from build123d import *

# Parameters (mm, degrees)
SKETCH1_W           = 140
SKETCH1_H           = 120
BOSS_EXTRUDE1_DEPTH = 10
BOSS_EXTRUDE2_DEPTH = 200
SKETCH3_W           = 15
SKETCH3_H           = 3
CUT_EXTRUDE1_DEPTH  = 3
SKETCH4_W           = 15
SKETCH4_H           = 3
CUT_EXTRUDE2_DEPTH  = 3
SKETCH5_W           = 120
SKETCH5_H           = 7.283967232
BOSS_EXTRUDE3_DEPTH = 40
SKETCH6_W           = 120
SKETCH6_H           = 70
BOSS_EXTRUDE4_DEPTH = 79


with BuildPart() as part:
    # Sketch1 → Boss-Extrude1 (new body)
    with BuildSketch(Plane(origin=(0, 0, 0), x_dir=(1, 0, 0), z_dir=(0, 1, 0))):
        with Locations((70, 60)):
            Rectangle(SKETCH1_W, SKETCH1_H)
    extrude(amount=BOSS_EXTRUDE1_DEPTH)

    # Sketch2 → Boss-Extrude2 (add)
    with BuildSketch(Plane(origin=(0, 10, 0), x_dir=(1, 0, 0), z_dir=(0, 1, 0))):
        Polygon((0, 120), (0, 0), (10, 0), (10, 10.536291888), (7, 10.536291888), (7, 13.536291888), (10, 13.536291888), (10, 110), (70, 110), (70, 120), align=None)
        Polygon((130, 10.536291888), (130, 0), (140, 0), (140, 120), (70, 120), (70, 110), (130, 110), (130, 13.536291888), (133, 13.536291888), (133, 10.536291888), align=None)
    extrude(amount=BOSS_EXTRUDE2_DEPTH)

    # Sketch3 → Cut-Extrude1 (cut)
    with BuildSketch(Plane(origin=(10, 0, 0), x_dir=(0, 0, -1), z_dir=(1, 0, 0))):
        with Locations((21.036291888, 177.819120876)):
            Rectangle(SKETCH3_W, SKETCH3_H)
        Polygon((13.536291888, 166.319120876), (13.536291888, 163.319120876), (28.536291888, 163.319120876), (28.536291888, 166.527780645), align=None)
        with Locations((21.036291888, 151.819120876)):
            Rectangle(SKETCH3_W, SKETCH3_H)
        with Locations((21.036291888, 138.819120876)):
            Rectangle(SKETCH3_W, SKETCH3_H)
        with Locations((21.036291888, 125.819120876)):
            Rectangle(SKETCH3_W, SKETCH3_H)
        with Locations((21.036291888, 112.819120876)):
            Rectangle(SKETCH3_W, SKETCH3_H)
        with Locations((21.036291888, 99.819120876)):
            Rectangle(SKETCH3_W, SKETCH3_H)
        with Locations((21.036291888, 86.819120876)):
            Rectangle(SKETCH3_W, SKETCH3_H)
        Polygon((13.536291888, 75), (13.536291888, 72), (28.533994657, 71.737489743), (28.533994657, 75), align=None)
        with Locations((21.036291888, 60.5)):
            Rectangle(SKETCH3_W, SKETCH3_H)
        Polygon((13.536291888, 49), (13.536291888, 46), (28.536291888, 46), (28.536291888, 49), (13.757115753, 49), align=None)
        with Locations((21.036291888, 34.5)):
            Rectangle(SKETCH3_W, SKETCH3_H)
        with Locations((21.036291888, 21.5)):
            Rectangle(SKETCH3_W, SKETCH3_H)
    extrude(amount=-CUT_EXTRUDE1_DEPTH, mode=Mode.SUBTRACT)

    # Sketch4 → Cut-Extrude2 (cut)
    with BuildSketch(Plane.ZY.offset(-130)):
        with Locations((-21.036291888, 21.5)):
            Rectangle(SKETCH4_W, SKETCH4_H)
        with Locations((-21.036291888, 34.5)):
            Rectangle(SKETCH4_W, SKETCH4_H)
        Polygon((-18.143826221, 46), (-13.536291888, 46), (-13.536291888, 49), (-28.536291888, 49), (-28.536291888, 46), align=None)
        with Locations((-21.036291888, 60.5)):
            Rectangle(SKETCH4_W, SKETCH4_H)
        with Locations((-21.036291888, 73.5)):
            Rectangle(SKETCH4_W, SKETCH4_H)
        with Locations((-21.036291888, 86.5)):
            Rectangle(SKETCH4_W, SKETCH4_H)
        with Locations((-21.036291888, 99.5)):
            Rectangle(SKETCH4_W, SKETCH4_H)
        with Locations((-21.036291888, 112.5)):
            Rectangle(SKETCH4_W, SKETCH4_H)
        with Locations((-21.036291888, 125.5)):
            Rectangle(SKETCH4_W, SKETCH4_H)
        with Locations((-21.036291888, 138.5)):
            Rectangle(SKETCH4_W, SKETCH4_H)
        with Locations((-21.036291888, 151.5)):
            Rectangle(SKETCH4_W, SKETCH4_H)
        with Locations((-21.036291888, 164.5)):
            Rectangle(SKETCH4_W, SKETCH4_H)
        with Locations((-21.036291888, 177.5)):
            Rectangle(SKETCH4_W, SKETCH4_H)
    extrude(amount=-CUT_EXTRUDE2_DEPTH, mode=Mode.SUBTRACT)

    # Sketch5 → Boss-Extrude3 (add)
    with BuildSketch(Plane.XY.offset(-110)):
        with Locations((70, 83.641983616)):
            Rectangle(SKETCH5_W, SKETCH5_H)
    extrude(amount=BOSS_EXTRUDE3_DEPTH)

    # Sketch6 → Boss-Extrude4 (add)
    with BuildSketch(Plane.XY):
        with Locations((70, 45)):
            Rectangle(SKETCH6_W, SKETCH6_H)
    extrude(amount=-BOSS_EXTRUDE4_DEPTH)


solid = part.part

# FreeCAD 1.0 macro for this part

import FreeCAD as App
import Part
import Sketcher
from FreeCAD import Vector
Q = App.Units.Quantity

doc = App.newDocument("Part")
body = doc.addObject("PartDesign::Body", "Body")

# Sketch on XZ plane
sketch1 = body.newObject("Sketcher::SketchObject", "Sketch")
sketch1.AttachmentSupport = (doc.getObject("XZ_Plane"), [""])
sketch1.MapMode = "FlatFace"
sketch1.addGeometry([
    Part.LineSegment(Vector(0, -120, 0), Vector(0, 0, 0)),
    Part.LineSegment(Vector(0, 0, 0), Vector(140, 0, 0)),
    Part.LineSegment(Vector(140, 0, 0), Vector(140, -120, 0)),
    Part.LineSegment(Vector(140, -120, 0), Vector(0, -120, 0)),
], False)
sketch1.addConstraint([
    Sketcher.Constraint("Coincident", 0, 2, 1, 1),
    Sketcher.Constraint("Coincident", 1, 2, 2, 1),
    Sketcher.Constraint("Coincident", 2, 2, 3, 1),
    Sketcher.Constraint("Coincident", 3, 2, 0, 1),
    Sketcher.Constraint("Vertical", 0),
    Sketcher.Constraint("Horizontal", 1),
    Sketcher.Constraint("Vertical", 2),
    Sketcher.Constraint("Horizontal", 3),
    Sketcher.Constraint("Coincident", 0, 2, -1, 1),
    Sketcher.Constraint("DistanceX", 1, 1, 1, 2, Q("140 mm")),
    Sketcher.Constraint("DistanceY", 0, 1, 0, 2, Q("120 mm")),
])
pad1 = body.newObject("PartDesign::Pad", "Pad")
pad1.Profile = sketch1
pad1.Length = 10
pad1.Reversed = True

# Sketch on XZ plane
sketch2 = body.newObject("Sketcher::SketchObject", "Sketch001")
sketch2.AttachmentSupport = (doc.getObject("XZ_Plane"), [""])
sketch2.MapMode = "FlatFace"
sketch2.AttachmentOffset = App.Placement(Vector(0, 0, -10), App.Rotation())
sketch2.addGeometry([
    Part.LineSegment(Vector(0, -120, 0), Vector(0, 0, 0)),  # 0
    Part.LineSegment(Vector(0, 0, 0), Vector(10, 0, 0)),  # 1
    Part.LineSegment(Vector(10, 0, 0), Vector(10, -10.5, 0)),  # 2
    Part.LineSegment(Vector(10, -10.5, 0), Vector(7, -10.5, 0)),  # 3
    Part.LineSegment(Vector(7, -10.5, 0), Vector(7, -13.5, 0)),  # 4
    Part.LineSegment(Vector(7, -13.5, 0), Vector(10, -13.5, 0)),  # 5
    Part.LineSegment(Vector(10, -13.5, 0), Vector(10, -110, 0)),  # 6
    Part.LineSegment(Vector(10, -110, 0), Vector(130, -110, 0)),  # 7
    Part.LineSegment(Vector(130, -110, 0), Vector(130, -13.5, 0)),  # 8
    Part.LineSegment(Vector(130, -13.5, 0), Vector(133, -13.5, 0)),  # 9
    Part.LineSegment(Vector(133, -13.5, 0), Vector(133, -10.5, 0)),  # 10
    Part.LineSegment(Vector(133, -10.5, 0), Vector(130, -10.5, 0)),  # 11
    Part.LineSegment(Vector(130, -10.5, 0), Vector(130, 0, 0)),  # 12
    Part.LineSegment(Vector(130, 0, 0), Vector(140, 0, 0)),  # 13
    Part.LineSegment(Vector(140, 0, 0), Vector(140, -120, 0)),  # 14
    Part.LineSegment(Vector(140, -120, 0), Vector(0, -120, 0)),  # 15
], False)
sketch2.addConstraint([
    Sketcher.Constraint("Coincident", 0, 2, 1, 1),
    Sketcher.Constraint("Coincident", 1, 2, 2, 1),
    Sketcher.Constraint("Coincident", 2, 2, 3, 1),
    Sketcher.Constraint("Coincident", 3, 2, 4, 1),
    Sketcher.Constraint("Coincident", 4, 2, 5, 1),
    Sketcher.Constraint("Coincident", 5, 2, 6, 1),
    Sketcher.Constraint("Coincident", 6, 2, 7, 1),
    Sketcher.Constraint("Coincident", 7, 2, 8, 1),
    Sketcher.Constraint("Coincident", 8, 2, 9, 1),
    Sketcher.Constraint("Coincident", 9, 2, 10, 1),
    Sketcher.Constraint("Coincident", 10, 2, 11, 1),
    Sketcher.Constraint("Coincident", 11, 2, 12, 1),
    Sketcher.Constraint("Coincident", 12, 2, 13, 1),
    Sketcher.Constraint("Coincident", 13, 2, 14, 1),
    Sketcher.Constraint("Coincident", 14, 2, 15, 1),
    Sketcher.Constraint("Coincident", 15, 2, 0, 1),
    Sketcher.Constraint("Vertical", 0),
    Sketcher.Constraint("Horizontal", 1),
    Sketcher.Constraint("Vertical", 2),
    Sketcher.Constraint("Horizontal", 3),
    Sketcher.Constraint("Vertical", 4),
    Sketcher.Constraint("Horizontal", 5),
    Sketcher.Constraint("Vertical", 6),
    Sketcher.Constraint("Horizontal", 7),
    Sketcher.Constraint("Vertical", 8),
    Sketcher.Constraint("Horizontal", 9),
    Sketcher.Constraint("Vertical", 10),
    Sketcher.Constraint("Horizontal", 11),
    Sketcher.Constraint("Vertical", 12),
    Sketcher.Constraint("Horizontal", 13),
    Sketcher.Constraint("Vertical", 14),
    Sketcher.Constraint("Horizontal", 15),
    Sketcher.Constraint("Coincident", 0, 2, -1, 1),
    Sketcher.Constraint("PointOnObject", 12, 2, -1),
    Sketcher.Constraint("Horizontal", 5, 2, 8, 2),
    Sketcher.Constraint("Horizontal", 3, 2, 10, 2),
    Sketcher.Constraint("Vertical", 2, 2, 5, 2),
    Sketcher.Constraint("Vertical", 8, 2, 11, 2),
    Sketcher.Constraint("Equal", 5, 9),
    Sketcher.Constraint("Equal", 1, 13),
    Sketcher.Constraint("Equal", 7, 0),
    Sketcher.Constraint("Equal", 11, 4),
    Sketcher.Constraint("DistanceX", 1, 1, 1, 2, Q("10 mm")),
    Sketcher.Constraint("DistanceX", 3, 2, 3, 1, Q("3 mm")),
    Sketcher.Constraint("DistanceX", 7, 1, 7, 2, Q("120 mm")),
    Sketcher.Constraint("DistanceY", 6, 2, -1, 1, Q("110 mm")),
    Sketcher.Constraint("DistanceY", 2, 2, 2, 1, Q("10.536292 mm")),
])
pad2 = body.newObject("PartDesign::Pad", "Pad001")
pad2.Profile = sketch2
pad2.Length = 200
pad2.Reversed = True

# Sketch on YZ plane
sketch3 = body.newObject("Sketcher::SketchObject", "Sketch002")
sketch3.AttachmentSupport = (doc.getObject("YZ_Plane"), [""])
sketch3.MapMode = "FlatFace"
sketch3.AttachmentOffset = App.Placement(Vector(0, 0, 10), App.Rotation())
sketch3.addGeometry([
    Part.LineSegment(Vector(179.3, -13.5, 0), Vector(176.3, -13.5, 0)),  # 0
    Part.LineSegment(Vector(176.3, -13.5, 0), Vector(176.3, -28.5, 0)),  # 1
    Part.LineSegment(Vector(176.3, -28.5, 0), Vector(179.3, -28.5, 0)),  # 2
    Part.LineSegment(Vector(179.3, -28.5, 0), Vector(179.3, -13.5, 0)),  # 3
    Part.LineSegment(Vector(166.3, -13.5, 0), Vector(163.3, -13.5, 0)),  # 4
    Part.LineSegment(Vector(163.3, -13.5, 0), Vector(163.3, -28.5, 0)),  # 5
    Part.LineSegment(Vector(163.3, -28.5, 0), Vector(166.5, -28.5, 0)),  # 6
    Part.LineSegment(Vector(166.5, -28.5, 0), Vector(166.3, -13.5, 0)),  # 7
    Part.LineSegment(Vector(153.3, -13.5, 0), Vector(150.3, -13.5, 0)),  # 8
    Part.LineSegment(Vector(150.3, -13.5, 0), Vector(150.3, -28.5, 0)),  # 9
    Part.LineSegment(Vector(150.3, -28.5, 0), Vector(153.3, -28.5, 0)),  # 10
    Part.LineSegment(Vector(153.3, -28.5, 0), Vector(153.3, -13.5, 0)),  # 11
    Part.LineSegment(Vector(140.3, -13.5, 0), Vector(137.3, -13.5, 0)),  # 12
    Part.LineSegment(Vector(137.3, -13.5, 0), Vector(137.3, -28.5, 0)),  # 13
    Part.LineSegment(Vector(137.3, -28.5, 0), Vector(140.3, -28.5, 0)),  # 14
    Part.LineSegment(Vector(140.3, -28.5, 0), Vector(140.3, -13.5, 0)),  # 15
    Part.LineSegment(Vector(127.3, -13.5, 0), Vector(124.3, -13.5, 0)),  # 16
    Part.LineSegment(Vector(124.3, -13.5, 0), Vector(124.3, -28.5, 0)),  # 17
    Part.LineSegment(Vector(124.3, -28.5, 0), Vector(127.3, -28.5, 0)),  # 18
    Part.LineSegment(Vector(127.3, -28.5, 0), Vector(127.3, -13.5, 0)),  # 19
    Part.LineSegment(Vector(114.3, -13.5, 0), Vector(111.3, -13.5, 0)),  # 20
    Part.LineSegment(Vector(111.3, -13.5, 0), Vector(111.3, -28.5, 0)),  # 21
    Part.LineSegment(Vector(111.3, -28.5, 0), Vector(114.3, -28.5, 0)),  # 22
    Part.LineSegment(Vector(114.3, -28.5, 0), Vector(114.3, -13.5, 0)),  # 23
    Part.LineSegment(Vector(101.3, -13.5, 0), Vector(98.3, -13.5, 0)),  # 24
    Part.LineSegment(Vector(98.3, -13.5, 0), Vector(98.3, -28.5, 0)),  # 25
    Part.LineSegment(Vector(98.3, -28.5, 0), Vector(101.3, -28.5, 0)),  # 26
    Part.LineSegment(Vector(101.3, -28.5, 0), Vector(101.3, -13.5, 0)),  # 27
    Part.LineSegment(Vector(88.3, -13.5, 0), Vector(85.3, -13.5, 0)),  # 28
    Part.LineSegment(Vector(85.3, -13.5, 0), Vector(85.3, -28.5, 0)),  # 29
    Part.LineSegment(Vector(85.3, -28.5, 0), Vector(88.3, -28.5, 0)),  # 30
    Part.LineSegment(Vector(88.3, -28.5, 0), Vector(88.3, -13.5, 0)),  # 31
    Part.LineSegment(Vector(75, -13.5, 0), Vector(72, -13.5, 0)),  # 32
    Part.LineSegment(Vector(72, -13.5, 0), Vector(71.7, -28.5, 0)),  # 33
    Part.LineSegment(Vector(71.7, -28.5, 0), Vector(75, -28.5, 0)),  # 34
    Part.LineSegment(Vector(75, -28.5, 0), Vector(75, -13.5, 0)),  # 35
    Part.LineSegment(Vector(62, -13.5, 0), Vector(59, -13.5, 0)),  # 36
    Part.LineSegment(Vector(59, -13.5, 0), Vector(59, -28.5, 0)),  # 37
    Part.LineSegment(Vector(59, -28.5, 0), Vector(62, -28.5, 0)),  # 38
    Part.LineSegment(Vector(62, -28.5, 0), Vector(62, -13.5, 0)),  # 39
    Part.LineSegment(Vector(49, -13.5, 0), Vector(46, -13.5, 0)),  # 40
    Part.LineSegment(Vector(46, -13.5, 0), Vector(46, -28.5, 0)),  # 41
    Part.LineSegment(Vector(46, -28.5, 0), Vector(49, -28.5, 0)),  # 42
    Part.LineSegment(Vector(49, -28.5, 0), Vector(49, -13.5, 0)),  # 43
    Part.LineSegment(Vector(36, -13.5, 0), Vector(33, -13.5, 0)),  # 44
    Part.LineSegment(Vector(33, -13.5, 0), Vector(33, -28.5, 0)),  # 45
    Part.LineSegment(Vector(33, -28.5, 0), Vector(36, -28.5, 0)),  # 46
    Part.LineSegment(Vector(36, -28.5, 0), Vector(36, -13.5, 0)),  # 47
    Part.LineSegment(Vector(23, -13.5, 0), Vector(20, -13.5, 0)),  # 48
    Part.LineSegment(Vector(20, -13.5, 0), Vector(20, -28.5, 0)),  # 49
    Part.LineSegment(Vector(20, -28.5, 0), Vector(23, -28.5, 0)),  # 50
    Part.LineSegment(Vector(23, -28.5, 0), Vector(23, -13.5, 0)),  # 51
], False)
sketch3.addConstraint([
    Sketcher.Constraint("Coincident", 0, 2, 1, 1),
    Sketcher.Constraint("Coincident", 1, 2, 2, 1),
    Sketcher.Constraint("Coincident", 2, 2, 3, 1),
    Sketcher.Constraint("Coincident", 3, 2, 0, 1),
    Sketcher.Constraint("Coincident", 4, 2, 5, 1),
    Sketcher.Constraint("Coincident", 5, 2, 6, 1),
    Sketcher.Constraint("Coincident", 6, 2, 7, 1),
    Sketcher.Constraint("Coincident", 7, 2, 4, 1),
    Sketcher.Constraint("Coincident", 8, 2, 9, 1),
    Sketcher.Constraint("Coincident", 9, 2, 10, 1),
    Sketcher.Constraint("Coincident", 10, 2, 11, 1),
    Sketcher.Constraint("Coincident", 11, 2, 8, 1),
    Sketcher.Constraint("Coincident", 12, 2, 13, 1),
    Sketcher.Constraint("Coincident", 13, 2, 14, 1),
    Sketcher.Constraint("Coincident", 14, 2, 15, 1),
    Sketcher.Constraint("Coincident", 15, 2, 12, 1),
    Sketcher.Constraint("Coincident", 16, 2, 17, 1),
    Sketcher.Constraint("Coincident", 17, 2, 18, 1),
    Sketcher.Constraint("Coincident", 18, 2, 19, 1),
    Sketcher.Constraint("Coincident", 19, 2, 16, 1),
    Sketcher.Constraint("Coincident", 20, 2, 21, 1),
    Sketcher.Constraint("Coincident", 21, 2, 22, 1),
    Sketcher.Constraint("Coincident", 22, 2, 23, 1),
    Sketcher.Constraint("Coincident", 23, 2, 20, 1),
    Sketcher.Constraint("Coincident", 24, 2, 25, 1),
    Sketcher.Constraint("Coincident", 25, 2, 26, 1),
    Sketcher.Constraint("Coincident", 26, 2, 27, 1),
    Sketcher.Constraint("Coincident", 27, 2, 24, 1),
    Sketcher.Constraint("Coincident", 28, 2, 29, 1),
    Sketcher.Constraint("Coincident", 29, 2, 30, 1),
    Sketcher.Constraint("Coincident", 30, 2, 31, 1),
    Sketcher.Constraint("Coincident", 31, 2, 28, 1),
    Sketcher.Constraint("Coincident", 32, 2, 33, 1),
    Sketcher.Constraint("Coincident", 33, 2, 34, 1),
    Sketcher.Constraint("Coincident", 34, 2, 35, 1),
    Sketcher.Constraint("Coincident", 35, 2, 32, 1),
    Sketcher.Constraint("Coincident", 36, 2, 37, 1),
    Sketcher.Constraint("Coincident", 37, 2, 38, 1),
    Sketcher.Constraint("Coincident", 38, 2, 39, 1),
    Sketcher.Constraint("Coincident", 39, 2, 36, 1),
    Sketcher.Constraint("Coincident", 40, 2, 41, 1),
    Sketcher.Constraint("Coincident", 41, 2, 42, 1),
    Sketcher.Constraint("Coincident", 42, 2, 43, 1),
    Sketcher.Constraint("Coincident", 43, 2, 40, 1),
    Sketcher.Constraint("Coincident", 44, 2, 45, 1),
    Sketcher.Constraint("Coincident", 45, 2, 46, 1),
    Sketcher.Constraint("Coincident", 46, 2, 47, 1),
    Sketcher.Constraint("Coincident", 47, 2, 44, 1),
    Sketcher.Constraint("Coincident", 48, 2, 49, 1),
    Sketcher.Constraint("Coincident", 49, 2, 50, 1),
    Sketcher.Constraint("Coincident", 50, 2, 51, 1),
    Sketcher.Constraint("Coincident", 51, 2, 48, 1),
    Sketcher.Constraint("Horizontal", 0),
    Sketcher.Constraint("Vertical", 1),
    Sketcher.Constraint("Horizontal", 2),
    Sketcher.Constraint("Vertical", 3),
    Sketcher.Constraint("Horizontal", 4),
    Sketcher.Constraint("Vertical", 5),
    Sketcher.Constraint("Horizontal", 6),
    Sketcher.Constraint("Horizontal", 8),
    Sketcher.Constraint("Vertical", 9),
    Sketcher.Constraint("Horizontal", 10),
    Sketcher.Constraint("Vertical", 11),
    Sketcher.Constraint("Horizontal", 12),
    Sketcher.Constraint("Vertical", 13),
    Sketcher.Constraint("Horizontal", 14),
    Sketcher.Constraint("Vertical", 15),
    Sketcher.Constraint("Horizontal", 16),
    Sketcher.Constraint("Vertical", 17),
    Sketcher.Constraint("Horizontal", 18),
    Sketcher.Constraint("Vertical", 19),
    Sketcher.Constraint("Horizontal", 20),
    Sketcher.Constraint("Vertical", 21),
    Sketcher.Constraint("Horizontal", 22),
    Sketcher.Constraint("Vertical", 23),
    Sketcher.Constraint("Horizontal", 24),
    Sketcher.Constraint("Vertical", 25),
    Sketcher.Constraint("Horizontal", 26),
    Sketcher.Constraint("Vertical", 27),
    Sketcher.Constraint("Horizontal", 28),
    Sketcher.Constraint("Vertical", 29),
    Sketcher.Constraint("Horizontal", 30),
    Sketcher.Constraint("Vertical", 31),
    Sketcher.Constraint("Horizontal", 32),
    Sketcher.Constraint("Horizontal", 34),
    Sketcher.Constraint("Vertical", 35),
    Sketcher.Constraint("Horizontal", 36),
    Sketcher.Constraint("Vertical", 37),
    Sketcher.Constraint("Horizontal", 38),
    Sketcher.Constraint("Vertical", 39),
    Sketcher.Constraint("Horizontal", 40),
    Sketcher.Constraint("Vertical", 41),
    Sketcher.Constraint("Horizontal", 42),
    Sketcher.Constraint("Vertical", 43),
    Sketcher.Constraint("Horizontal", 44),
    Sketcher.Constraint("Vertical", 45),
    Sketcher.Constraint("Horizontal", 46),
    Sketcher.Constraint("Vertical", 47),
    Sketcher.Constraint("Horizontal", 48),
    Sketcher.Constraint("Vertical", 49),
    Sketcher.Constraint("Horizontal", 50),
    Sketcher.Constraint("Vertical", 51),
    Sketcher.Constraint("Horizontal", 3, 2, 4, 2),
    Sketcher.Constraint("Horizontal", 2, 2, 5, 2),
    Sketcher.Constraint("Horizontal", 7, 2, 8, 2),
    Sketcher.Constraint("Horizontal", 6, 2, 9, 2),
    Sketcher.Constraint("Horizontal", 11, 2, 12, 2),
    Sketcher.Constraint("Horizontal", 10, 2, 13, 2),
    Sketcher.Constraint("Horizontal", 15, 2, 16, 2),
    Sketcher.Constraint("Horizontal", 14, 2, 17, 2),
    Sketcher.Constraint("Horizontal", 19, 2, 20, 2),
    Sketcher.Constraint("Horizontal", 18, 2, 21, 2),
    Sketcher.Constraint("Horizontal", 23, 2, 24, 2),
    Sketcher.Constraint("Horizontal", 22, 2, 25, 2),
    Sketcher.Constraint("Horizontal", 27, 2, 28, 2),
    Sketcher.Constraint("Horizontal", 26, 2, 29, 2),
    Sketcher.Constraint("Horizontal", 31, 2, 32, 2),
    Sketcher.Constraint("Horizontal", 35, 2, 36, 2),
    Sketcher.Constraint("Horizontal", 30, 2, 37, 2),
    Sketcher.Constraint("Horizontal", 39, 2, 40, 2),
    Sketcher.Constraint("Horizontal", 38, 2, 41, 2),
    Sketcher.Constraint("Horizontal", 43, 2, 44, 2),
    Sketcher.Constraint("Horizontal", 42, 2, 45, 2),
    Sketcher.Constraint("Horizontal", 47, 2, 48, 2),
    Sketcher.Constraint("Horizontal", 46, 2, 49, 2),
    Sketcher.Constraint("Equal", 2, 4),
    Sketcher.Constraint("Equal", 4, 8),
    Sketcher.Constraint("Equal", 10, 12),
    Sketcher.Constraint("Equal", 14, 16),
    Sketcher.Constraint("Equal", 18, 20),
    Sketcher.Constraint("Equal", 22, 24),
    Sketcher.Constraint("Equal", 26, 28),
    Sketcher.Constraint("Equal", 30, 32),
    Sketcher.Constraint("Equal", 32, 36),
    Sketcher.Constraint("Equal", 38, 40),
    Sketcher.Constraint("Equal", 42, 44),
    Sketcher.Constraint("Equal", 46, 48),
    Sketcher.Constraint("DistanceX", 0, 2, 0, 1, Q("3 mm")),
    Sketcher.Constraint("DistanceY", 1, 2, 1, 1, Q("15 mm")),
    Sketcher.Constraint("Distance", 33, Q("15 mm")),
    Sketcher.Constraint("DistanceX", -1, 1, 32, 2, Q("72 mm")),
    Sketcher.Constraint("DistanceX", -1, 1, 36, 2, Q("59 mm")),
    Sketcher.Constraint("DistanceX", -1, 1, 40, 2, Q("46 mm")),
    Sketcher.Constraint("DistanceX", -1, 1, 44, 2, Q("33 mm")),
    Sketcher.Constraint("DistanceX", -1, 1, 48, 2, Q("20 mm")),
    Sketcher.Constraint("DistanceX", 4, 2, 0, 2, Q("13 mm")),
    Sketcher.Constraint("DistanceX", 8, 2, 4, 2, Q("13 mm")),
    Sketcher.Constraint("DistanceX", 12, 2, 8, 2, Q("13 mm")),
    Sketcher.Constraint("DistanceX", 16, 2, 12, 2, Q("13 mm")),
    Sketcher.Constraint("DistanceX", 20, 2, 16, 2, Q("13 mm")),
    Sketcher.Constraint("DistanceX", 24, 2, 20, 2, Q("13 mm")),
    Sketcher.Constraint("DistanceX", 28, 2, 24, 2, Q("13 mm")),
    Sketcher.Constraint("DistanceX", 6, 1, 6, 2, Q("3.20866 mm")),
    Sketcher.Constraint("DistanceX", 34, 1, 34, 2, Q("3.26251 mm")),
    Sketcher.Constraint("DistanceX", -1, 1, 0, 2, Q("176.319121 mm")),
    Sketcher.Constraint("DistanceY", 0, 2, -1, 1, Q("13.536292 mm")),
])
pocket1 = body.newObject("PartDesign::Pocket", "Pocket")
pocket1.Profile = sketch3
pocket1.Length = 3

# Sketch on YZ plane
sketch4 = body.newObject("Sketcher::SketchObject", "Sketch003")
sketch4.AttachmentSupport = (doc.getObject("YZ_Plane"), [""])
sketch4.MapMode = "FlatFace"
sketch4.AttachmentOffset = App.Placement(Vector(0, 0, 130), App.Rotation())
sketch4.addGeometry([
    Part.LineSegment(Vector(23, -28.5, 0), Vector(20, -28.5, 0)),  # 0
    Part.LineSegment(Vector(20, -28.5, 0), Vector(20, -13.5, 0)),  # 1
    Part.LineSegment(Vector(20, -13.5, 0), Vector(23, -13.5, 0)),  # 2
    Part.LineSegment(Vector(23, -13.5, 0), Vector(23, -28.5, 0)),  # 3
    Part.LineSegment(Vector(36, -28.5, 0), Vector(33, -28.5, 0)),  # 4
    Part.LineSegment(Vector(33, -28.5, 0), Vector(33, -13.5, 0)),  # 5
    Part.LineSegment(Vector(33, -13.5, 0), Vector(36, -13.5, 0)),  # 6
    Part.LineSegment(Vector(36, -13.5, 0), Vector(36, -28.5, 0)),  # 7
    Part.LineSegment(Vector(46, -13.5, 0), Vector(49, -13.5, 0)),  # 8
    Part.LineSegment(Vector(49, -13.5, 0), Vector(49, -28.5, 0)),  # 9
    Part.LineSegment(Vector(49, -28.5, 0), Vector(46, -28.5, 0)),  # 10
    Part.LineSegment(Vector(46, -28.5, 0), Vector(46, -13.5, 0)),  # 11
    Part.LineSegment(Vector(62, -28.5, 0), Vector(59, -28.5, 0)),  # 12
    Part.LineSegment(Vector(59, -28.5, 0), Vector(59, -13.5, 0)),  # 13
    Part.LineSegment(Vector(59, -13.5, 0), Vector(62, -13.5, 0)),  # 14
    Part.LineSegment(Vector(62, -13.5, 0), Vector(62, -28.5, 0)),  # 15
    Part.LineSegment(Vector(75, -28.5, 0), Vector(72, -28.5, 0)),  # 16
    Part.LineSegment(Vector(72, -28.5, 0), Vector(72, -13.5, 0)),  # 17
    Part.LineSegment(Vector(72, -13.5, 0), Vector(75, -13.5, 0)),  # 18
    Part.LineSegment(Vector(75, -13.5, 0), Vector(75, -28.5, 0)),  # 19
    Part.LineSegment(Vector(88, -28.5, 0), Vector(85, -28.5, 0)),  # 20
    Part.LineSegment(Vector(85, -28.5, 0), Vector(85, -13.5, 0)),  # 21
    Part.LineSegment(Vector(85, -13.5, 0), Vector(88, -13.5, 0)),  # 22
    Part.LineSegment(Vector(88, -13.5, 0), Vector(88, -28.5, 0)),  # 23
    Part.LineSegment(Vector(101, -28.5, 0), Vector(98, -28.5, 0)),  # 24
    Part.LineSegment(Vector(98, -28.5, 0), Vector(98, -13.5, 0)),  # 25
    Part.LineSegment(Vector(98, -13.5, 0), Vector(101, -13.5, 0)),  # 26
    Part.LineSegment(Vector(101, -13.5, 0), Vector(101, -28.5, 0)),  # 27
    Part.LineSegment(Vector(114, -28.5, 0), Vector(111, -28.5, 0)),  # 28
    Part.LineSegment(Vector(111, -28.5, 0), Vector(111, -13.5, 0)),  # 29
    Part.LineSegment(Vector(111, -13.5, 0), Vector(114, -13.5, 0)),  # 30
    Part.LineSegment(Vector(114, -13.5, 0), Vector(114, -28.5, 0)),  # 31
    Part.LineSegment(Vector(127, -28.5, 0), Vector(124, -28.5, 0)),  # 32
    Part.LineSegment(Vector(124, -28.5, 0), Vector(124, -13.5, 0)),  # 33
    Part.LineSegment(Vector(124, -13.5, 0), Vector(127, -13.5, 0)),  # 34
    Part.LineSegment(Vector(127, -13.5, 0), Vector(127, -28.5, 0)),  # 35
    Part.LineSegment(Vector(140, -28.5, 0), Vector(137, -28.5, 0)),  # 36
    Part.LineSegment(Vector(137, -28.5, 0), Vector(137, -13.5, 0)),  # 37
    Part.LineSegment(Vector(137, -13.5, 0), Vector(140, -13.5, 0)),  # 38
    Part.LineSegment(Vector(140, -13.5, 0), Vector(140, -28.5, 0)),  # 39
    Part.LineSegment(Vector(153, -28.5, 0), Vector(150, -28.5, 0)),  # 40
    Part.LineSegment(Vector(150, -28.5, 0), Vector(150, -13.5, 0)),  # 41
    Part.LineSegment(Vector(150, -13.5, 0), Vector(153, -13.5, 0)),  # 42
    Part.LineSegment(Vector(153, -13.5, 0), Vector(153, -28.5, 0)),  # 43
    Part.LineSegment(Vector(166, -28.5, 0), Vector(163, -28.5, 0)),  # 44
    Part.LineSegment(Vector(163, -28.5, 0), Vector(163, -13.5, 0)),  # 45
    Part.LineSegment(Vector(163, -13.5, 0), Vector(166, -13.5, 0)),  # 46
    Part.LineSegment(Vector(166, -13.5, 0), Vector(166, -28.5, 0)),  # 47
    Part.LineSegment(Vector(179, -28.5, 0), Vector(176, -28.5, 0)),  # 48
    Part.LineSegment(Vector(176, -28.5, 0), Vector(176, -13.5, 0)),  # 49
    Part.LineSegment(Vector(176, -13.5, 0), Vector(179, -13.5, 0)),  # 50
    Part.LineSegment(Vector(179, -13.5, 0), Vector(179, -28.5, 0)),  # 51
], False)
sketch4.addConstraint([
    Sketcher.Constraint("Coincident", 0, 2, 1, 1),
    Sketcher.Constraint("Coincident", 1, 2, 2, 1),
    Sketcher.Constraint("Coincident", 2, 2, 3, 1),
    Sketcher.Constraint("Coincident", 3, 2, 0, 1),
    Sketcher.Constraint("Coincident", 4, 2, 5, 1),
    Sketcher.Constraint("Coincident", 5, 2, 6, 1),
    Sketcher.Constraint("Coincident", 6, 2, 7, 1),
    Sketcher.Constraint("Coincident", 7, 2, 4, 1),
    Sketcher.Constraint("Coincident", 8, 2, 9, 1),
    Sketcher.Constraint("Coincident", 9, 2, 10, 1),
    Sketcher.Constraint("Coincident", 10, 2, 11, 1),
    Sketcher.Constraint("Coincident", 11, 2, 8, 1),
    Sketcher.Constraint("Coincident", 12, 2, 13, 1),
    Sketcher.Constraint("Coincident", 13, 2, 14, 1),
    Sketcher.Constraint("Coincident", 14, 2, 15, 1),
    Sketcher.Constraint("Coincident", 15, 2, 12, 1),
    Sketcher.Constraint("Coincident", 16, 2, 17, 1),
    Sketcher.Constraint("Coincident", 17, 2, 18, 1),
    Sketcher.Constraint("Coincident", 18, 2, 19, 1),
    Sketcher.Constraint("Coincident", 19, 2, 16, 1),
    Sketcher.Constraint("Coincident", 20, 2, 21, 1),
    Sketcher.Constraint("Coincident", 21, 2, 22, 1),
    Sketcher.Constraint("Coincident", 22, 2, 23, 1),
    Sketcher.Constraint("Coincident", 23, 2, 20, 1),
    Sketcher.Constraint("Coincident", 24, 2, 25, 1),
    Sketcher.Constraint("Coincident", 25, 2, 26, 1),
    Sketcher.Constraint("Coincident", 26, 2, 27, 1),
    Sketcher.Constraint("Coincident", 27, 2, 24, 1),
    Sketcher.Constraint("Coincident", 28, 2, 29, 1),
    Sketcher.Constraint("Coincident", 29, 2, 30, 1),
    Sketcher.Constraint("Coincident", 30, 2, 31, 1),
    Sketcher.Constraint("Coincident", 31, 2, 28, 1),
    Sketcher.Constraint("Coincident", 32, 2, 33, 1),
    Sketcher.Constraint("Coincident", 33, 2, 34, 1),
    Sketcher.Constraint("Coincident", 34, 2, 35, 1),
    Sketcher.Constraint("Coincident", 35, 2, 32, 1),
    Sketcher.Constraint("Coincident", 36, 2, 37, 1),
    Sketcher.Constraint("Coincident", 37, 2, 38, 1),
    Sketcher.Constraint("Coincident", 38, 2, 39, 1),
    Sketcher.Constraint("Coincident", 39, 2, 36, 1),
    Sketcher.Constraint("Coincident", 40, 2, 41, 1),
    Sketcher.Constraint("Coincident", 41, 2, 42, 1),
    Sketcher.Constraint("Coincident", 42, 2, 43, 1),
    Sketcher.Constraint("Coincident", 43, 2, 40, 1),
    Sketcher.Constraint("Coincident", 44, 2, 45, 1),
    Sketcher.Constraint("Coincident", 45, 2, 46, 1),
    Sketcher.Constraint("Coincident", 46, 2, 47, 1),
    Sketcher.Constraint("Coincident", 47, 2, 44, 1),
    Sketcher.Constraint("Coincident", 48, 2, 49, 1),
    Sketcher.Constraint("Coincident", 49, 2, 50, 1),
    Sketcher.Constraint("Coincident", 50, 2, 51, 1),
    Sketcher.Constraint("Coincident", 51, 2, 48, 1),
    Sketcher.Constraint("Horizontal", 0),
    Sketcher.Constraint("Vertical", 1),
    Sketcher.Constraint("Horizontal", 2),
    Sketcher.Constraint("Vertical", 3),
    Sketcher.Constraint("Horizontal", 4),
    Sketcher.Constraint("Vertical", 5),
    Sketcher.Constraint("Horizontal", 6),
    Sketcher.Constraint("Vertical", 7),
    Sketcher.Constraint("Horizontal", 8),
    Sketcher.Constraint("Vertical", 9),
    Sketcher.Constraint("Horizontal", 10),
    Sketcher.Constraint("Vertical", 11),
    Sketcher.Constraint("Horizontal", 12),
    Sketcher.Constraint("Vertical", 13),
    Sketcher.Constraint("Horizontal", 14),
    Sketcher.Constraint("Vertical", 15),
    Sketcher.Constraint("Horizontal", 16),
    Sketcher.Constraint("Vertical", 17),
    Sketcher.Constraint("Horizontal", 18),
    Sketcher.Constraint("Vertical", 19),
    Sketcher.Constraint("Horizontal", 20),
    Sketcher.Constraint("Vertical", 21),
    Sketcher.Constraint("Horizontal", 22),
    Sketcher.Constraint("Vertical", 23),
    Sketcher.Constraint("Horizontal", 24),
    Sketcher.Constraint("Vertical", 25),
    Sketcher.Constraint("Horizontal", 26),
    Sketcher.Constraint("Vertical", 27),
    Sketcher.Constraint("Horizontal", 28),
    Sketcher.Constraint("Vertical", 29),
    Sketcher.Constraint("Horizontal", 30),
    Sketcher.Constraint("Vertical", 31),
    Sketcher.Constraint("Horizontal", 32),
    Sketcher.Constraint("Vertical", 33),
    Sketcher.Constraint("Horizontal", 34),
    Sketcher.Constraint("Vertical", 35),
    Sketcher.Constraint("Horizontal", 36),
    Sketcher.Constraint("Vertical", 37),
    Sketcher.Constraint("Horizontal", 38),
    Sketcher.Constraint("Vertical", 39),
    Sketcher.Constraint("Horizontal", 40),
    Sketcher.Constraint("Vertical", 41),
    Sketcher.Constraint("Horizontal", 42),
    Sketcher.Constraint("Vertical", 43),
    Sketcher.Constraint("Horizontal", 44),
    Sketcher.Constraint("Vertical", 45),
    Sketcher.Constraint("Horizontal", 46),
    Sketcher.Constraint("Vertical", 47),
    Sketcher.Constraint("Horizontal", 48),
    Sketcher.Constraint("Vertical", 49),
    Sketcher.Constraint("Horizontal", 50),
    Sketcher.Constraint("Vertical", 51),
    Sketcher.Constraint("Horizontal", 3, 2, 4, 2),
    Sketcher.Constraint("Horizontal", 2, 2, 5, 2),
    Sketcher.Constraint("Horizontal", 6, 2, 8, 2),
    Sketcher.Constraint("Horizontal", 7, 2, 9, 2),
    Sketcher.Constraint("Horizontal", 10, 2, 12, 2),
    Sketcher.Constraint("Horizontal", 11, 2, 13, 2),
    Sketcher.Constraint("Horizontal", 15, 2, 16, 2),
    Sketcher.Constraint("Horizontal", 14, 2, 17, 2),
    Sketcher.Constraint("Horizontal", 19, 2, 20, 2),
    Sketcher.Constraint("Horizontal", 18, 2, 21, 2),
    Sketcher.Constraint("Horizontal", 23, 2, 24, 2),
    Sketcher.Constraint("Horizontal", 22, 2, 25, 2),
    Sketcher.Constraint("Horizontal", 27, 2, 28, 2),
    Sketcher.Constraint("Horizontal", 26, 2, 29, 2),
    Sketcher.Constraint("Horizontal", 31, 2, 32, 2),
    Sketcher.Constraint("Horizontal", 30, 2, 33, 2),
    Sketcher.Constraint("Horizontal", 35, 2, 36, 2),
    Sketcher.Constraint("Horizontal", 34, 2, 37, 2),
    Sketcher.Constraint("Horizontal", 39, 2, 40, 2),
    Sketcher.Constraint("Horizontal", 38, 2, 41, 2),
    Sketcher.Constraint("Horizontal", 43, 2, 44, 2),
    Sketcher.Constraint("Horizontal", 42, 2, 45, 2),
    Sketcher.Constraint("Horizontal", 47, 2, 48, 2),
    Sketcher.Constraint("Horizontal", 46, 2, 49, 2),
    Sketcher.Constraint("Equal", 2, 4),
    Sketcher.Constraint("Equal", 6, 8),
    Sketcher.Constraint("Equal", 10, 12),
    Sketcher.Constraint("Equal", 14, 16),
    Sketcher.Constraint("Equal", 18, 20),
    Sketcher.Constraint("Equal", 22, 24),
    Sketcher.Constraint("Equal", 26, 28),
    Sketcher.Constraint("Equal", 30, 32),
    Sketcher.Constraint("Equal", 34, 36),
    Sketcher.Constraint("Equal", 38, 40),
    Sketcher.Constraint("Equal", 42, 44),
    Sketcher.Constraint("Equal", 46, 48),
    Sketcher.Constraint("DistanceX", 0, 2, 0, 1, Q("3 mm")),
    Sketcher.Constraint("DistanceY", 1, 1, 1, 2, Q("15 mm")),
    Sketcher.Constraint("DistanceX", -1, 1, 0, 2, Q("20 mm")),
    Sketcher.Constraint("DistanceX", -1, 1, 4, 2, Q("33 mm")),
    Sketcher.Constraint("DistanceX", -1, 1, 8, 2, Q("49 mm")),
    Sketcher.Constraint("DistanceX", -1, 1, 12, 2, Q("59 mm")),
    Sketcher.Constraint("DistanceX", -1, 1, 16, 2, Q("72 mm")),
    Sketcher.Constraint("DistanceX", -1, 1, 20, 2, Q("85 mm")),
    Sketcher.Constraint("DistanceX", -1, 1, 24, 2, Q("98 mm")),
    Sketcher.Constraint("DistanceX", -1, 1, 28, 2, Q("111 mm")),
    Sketcher.Constraint("DistanceX", -1, 1, 32, 2, Q("124 mm")),
    Sketcher.Constraint("DistanceX", -1, 1, 36, 2, Q("137 mm")),
    Sketcher.Constraint("DistanceX", -1, 1, 40, 2, Q("150 mm")),
    Sketcher.Constraint("DistanceX", -1, 1, 44, 2, Q("163 mm")),
    Sketcher.Constraint("DistanceX", -1, 1, 48, 2, Q("176 mm")),
    Sketcher.Constraint("DistanceY", 0, 2, -1, 1, Q("28.536292 mm")),
])
pocket2 = body.newObject("PartDesign::Pocket", "Pocket001")
pocket2.Profile = sketch4
pocket2.Length = 3
pocket2.Reversed = True

# Sketch on XY plane
sketch5 = body.newObject("Sketcher::SketchObject", "Sketch004")
sketch5.AttachmentSupport = (doc.getObject("XY_Plane"), [""])
sketch5.MapMode = "FlatFace"
sketch5.AttachmentOffset = App.Placement(Vector(0, 0, -110), App.Rotation())
sketch5.addGeometry([
    Part.LineSegment(Vector(10, 87, 0), Vector(10, 80, 0)),
    Part.LineSegment(Vector(10, 80, 0), Vector(130, 80, 0)),
    Part.LineSegment(Vector(130, 80, 0), Vector(130, 87, 0)),
    Part.LineSegment(Vector(130, 87, 0), Vector(10, 87, 0)),
], False)
sketch5.addConstraint([
    Sketcher.Constraint("Coincident", 0, 2, 1, 1),
    Sketcher.Constraint("Coincident", 1, 2, 2, 1),
    Sketcher.Constraint("Coincident", 2, 2, 3, 1),
    Sketcher.Constraint("Coincident", 3, 2, 0, 1),
    Sketcher.Constraint("Vertical", 0),
    Sketcher.Constraint("Horizontal", 1),
    Sketcher.Constraint("Vertical", 2),
    Sketcher.Constraint("Horizontal", 3),
    Sketcher.Constraint("DistanceX", 1, 1, 1, 2, Q("120 mm")),
    Sketcher.Constraint("DistanceX", -1, 1, 0, 2, Q("10 mm")),
    Sketcher.Constraint("DistanceY", -1, 1, 0, 2, Q("80 mm")),
    Sketcher.Constraint("DistanceY", 0, 2, 0, 1, Q("7.283967 mm")),
])
pad3 = body.newObject("PartDesign::Pad", "Pad002")
pad3.Profile = sketch5
pad3.Length = 40

# Sketch on XY plane
sketch6 = body.newObject("Sketcher::SketchObject", "Sketch005")
sketch6.AttachmentSupport = (doc.getObject("XY_Plane"), [""])
sketch6.MapMode = "FlatFace"
sketch6.addGeometry([
    Part.LineSegment(Vector(10, 80, 0), Vector(10, 10, 0)),
    Part.LineSegment(Vector(10, 10, 0), Vector(130, 10, 0)),
    Part.LineSegment(Vector(130, 10, 0), Vector(130, 80, 0)),
    Part.LineSegment(Vector(130, 80, 0), Vector(10, 80, 0)),
], False)
sketch6.addConstraint([
    Sketcher.Constraint("Coincident", 0, 2, 1, 1),
    Sketcher.Constraint("Coincident", 1, 2, 2, 1),
    Sketcher.Constraint("Coincident", 2, 2, 3, 1),
    Sketcher.Constraint("Coincident", 3, 2, 0, 1),
    Sketcher.Constraint("Vertical", 0),
    Sketcher.Constraint("Horizontal", 1),
    Sketcher.Constraint("Vertical", 2),
    Sketcher.Constraint("Horizontal", 3),
    Sketcher.Constraint("DistanceX", 1, 1, 1, 2, Q("120 mm")),
    Sketcher.Constraint("DistanceY", 0, 2, 0, 1, Q("70 mm")),
    Sketcher.Constraint("DistanceX", -1, 1, 0, 2, Q("10 mm")),
    Sketcher.Constraint("DistanceY", -1, 1, 0, 2, Q("10 mm")),
])
pad4 = body.newObject("PartDesign::Pad", "Pad003")
pad4.Profile = sketch6
pad4.Length = 79
pad4.Reversed = True

doc.recompute()
